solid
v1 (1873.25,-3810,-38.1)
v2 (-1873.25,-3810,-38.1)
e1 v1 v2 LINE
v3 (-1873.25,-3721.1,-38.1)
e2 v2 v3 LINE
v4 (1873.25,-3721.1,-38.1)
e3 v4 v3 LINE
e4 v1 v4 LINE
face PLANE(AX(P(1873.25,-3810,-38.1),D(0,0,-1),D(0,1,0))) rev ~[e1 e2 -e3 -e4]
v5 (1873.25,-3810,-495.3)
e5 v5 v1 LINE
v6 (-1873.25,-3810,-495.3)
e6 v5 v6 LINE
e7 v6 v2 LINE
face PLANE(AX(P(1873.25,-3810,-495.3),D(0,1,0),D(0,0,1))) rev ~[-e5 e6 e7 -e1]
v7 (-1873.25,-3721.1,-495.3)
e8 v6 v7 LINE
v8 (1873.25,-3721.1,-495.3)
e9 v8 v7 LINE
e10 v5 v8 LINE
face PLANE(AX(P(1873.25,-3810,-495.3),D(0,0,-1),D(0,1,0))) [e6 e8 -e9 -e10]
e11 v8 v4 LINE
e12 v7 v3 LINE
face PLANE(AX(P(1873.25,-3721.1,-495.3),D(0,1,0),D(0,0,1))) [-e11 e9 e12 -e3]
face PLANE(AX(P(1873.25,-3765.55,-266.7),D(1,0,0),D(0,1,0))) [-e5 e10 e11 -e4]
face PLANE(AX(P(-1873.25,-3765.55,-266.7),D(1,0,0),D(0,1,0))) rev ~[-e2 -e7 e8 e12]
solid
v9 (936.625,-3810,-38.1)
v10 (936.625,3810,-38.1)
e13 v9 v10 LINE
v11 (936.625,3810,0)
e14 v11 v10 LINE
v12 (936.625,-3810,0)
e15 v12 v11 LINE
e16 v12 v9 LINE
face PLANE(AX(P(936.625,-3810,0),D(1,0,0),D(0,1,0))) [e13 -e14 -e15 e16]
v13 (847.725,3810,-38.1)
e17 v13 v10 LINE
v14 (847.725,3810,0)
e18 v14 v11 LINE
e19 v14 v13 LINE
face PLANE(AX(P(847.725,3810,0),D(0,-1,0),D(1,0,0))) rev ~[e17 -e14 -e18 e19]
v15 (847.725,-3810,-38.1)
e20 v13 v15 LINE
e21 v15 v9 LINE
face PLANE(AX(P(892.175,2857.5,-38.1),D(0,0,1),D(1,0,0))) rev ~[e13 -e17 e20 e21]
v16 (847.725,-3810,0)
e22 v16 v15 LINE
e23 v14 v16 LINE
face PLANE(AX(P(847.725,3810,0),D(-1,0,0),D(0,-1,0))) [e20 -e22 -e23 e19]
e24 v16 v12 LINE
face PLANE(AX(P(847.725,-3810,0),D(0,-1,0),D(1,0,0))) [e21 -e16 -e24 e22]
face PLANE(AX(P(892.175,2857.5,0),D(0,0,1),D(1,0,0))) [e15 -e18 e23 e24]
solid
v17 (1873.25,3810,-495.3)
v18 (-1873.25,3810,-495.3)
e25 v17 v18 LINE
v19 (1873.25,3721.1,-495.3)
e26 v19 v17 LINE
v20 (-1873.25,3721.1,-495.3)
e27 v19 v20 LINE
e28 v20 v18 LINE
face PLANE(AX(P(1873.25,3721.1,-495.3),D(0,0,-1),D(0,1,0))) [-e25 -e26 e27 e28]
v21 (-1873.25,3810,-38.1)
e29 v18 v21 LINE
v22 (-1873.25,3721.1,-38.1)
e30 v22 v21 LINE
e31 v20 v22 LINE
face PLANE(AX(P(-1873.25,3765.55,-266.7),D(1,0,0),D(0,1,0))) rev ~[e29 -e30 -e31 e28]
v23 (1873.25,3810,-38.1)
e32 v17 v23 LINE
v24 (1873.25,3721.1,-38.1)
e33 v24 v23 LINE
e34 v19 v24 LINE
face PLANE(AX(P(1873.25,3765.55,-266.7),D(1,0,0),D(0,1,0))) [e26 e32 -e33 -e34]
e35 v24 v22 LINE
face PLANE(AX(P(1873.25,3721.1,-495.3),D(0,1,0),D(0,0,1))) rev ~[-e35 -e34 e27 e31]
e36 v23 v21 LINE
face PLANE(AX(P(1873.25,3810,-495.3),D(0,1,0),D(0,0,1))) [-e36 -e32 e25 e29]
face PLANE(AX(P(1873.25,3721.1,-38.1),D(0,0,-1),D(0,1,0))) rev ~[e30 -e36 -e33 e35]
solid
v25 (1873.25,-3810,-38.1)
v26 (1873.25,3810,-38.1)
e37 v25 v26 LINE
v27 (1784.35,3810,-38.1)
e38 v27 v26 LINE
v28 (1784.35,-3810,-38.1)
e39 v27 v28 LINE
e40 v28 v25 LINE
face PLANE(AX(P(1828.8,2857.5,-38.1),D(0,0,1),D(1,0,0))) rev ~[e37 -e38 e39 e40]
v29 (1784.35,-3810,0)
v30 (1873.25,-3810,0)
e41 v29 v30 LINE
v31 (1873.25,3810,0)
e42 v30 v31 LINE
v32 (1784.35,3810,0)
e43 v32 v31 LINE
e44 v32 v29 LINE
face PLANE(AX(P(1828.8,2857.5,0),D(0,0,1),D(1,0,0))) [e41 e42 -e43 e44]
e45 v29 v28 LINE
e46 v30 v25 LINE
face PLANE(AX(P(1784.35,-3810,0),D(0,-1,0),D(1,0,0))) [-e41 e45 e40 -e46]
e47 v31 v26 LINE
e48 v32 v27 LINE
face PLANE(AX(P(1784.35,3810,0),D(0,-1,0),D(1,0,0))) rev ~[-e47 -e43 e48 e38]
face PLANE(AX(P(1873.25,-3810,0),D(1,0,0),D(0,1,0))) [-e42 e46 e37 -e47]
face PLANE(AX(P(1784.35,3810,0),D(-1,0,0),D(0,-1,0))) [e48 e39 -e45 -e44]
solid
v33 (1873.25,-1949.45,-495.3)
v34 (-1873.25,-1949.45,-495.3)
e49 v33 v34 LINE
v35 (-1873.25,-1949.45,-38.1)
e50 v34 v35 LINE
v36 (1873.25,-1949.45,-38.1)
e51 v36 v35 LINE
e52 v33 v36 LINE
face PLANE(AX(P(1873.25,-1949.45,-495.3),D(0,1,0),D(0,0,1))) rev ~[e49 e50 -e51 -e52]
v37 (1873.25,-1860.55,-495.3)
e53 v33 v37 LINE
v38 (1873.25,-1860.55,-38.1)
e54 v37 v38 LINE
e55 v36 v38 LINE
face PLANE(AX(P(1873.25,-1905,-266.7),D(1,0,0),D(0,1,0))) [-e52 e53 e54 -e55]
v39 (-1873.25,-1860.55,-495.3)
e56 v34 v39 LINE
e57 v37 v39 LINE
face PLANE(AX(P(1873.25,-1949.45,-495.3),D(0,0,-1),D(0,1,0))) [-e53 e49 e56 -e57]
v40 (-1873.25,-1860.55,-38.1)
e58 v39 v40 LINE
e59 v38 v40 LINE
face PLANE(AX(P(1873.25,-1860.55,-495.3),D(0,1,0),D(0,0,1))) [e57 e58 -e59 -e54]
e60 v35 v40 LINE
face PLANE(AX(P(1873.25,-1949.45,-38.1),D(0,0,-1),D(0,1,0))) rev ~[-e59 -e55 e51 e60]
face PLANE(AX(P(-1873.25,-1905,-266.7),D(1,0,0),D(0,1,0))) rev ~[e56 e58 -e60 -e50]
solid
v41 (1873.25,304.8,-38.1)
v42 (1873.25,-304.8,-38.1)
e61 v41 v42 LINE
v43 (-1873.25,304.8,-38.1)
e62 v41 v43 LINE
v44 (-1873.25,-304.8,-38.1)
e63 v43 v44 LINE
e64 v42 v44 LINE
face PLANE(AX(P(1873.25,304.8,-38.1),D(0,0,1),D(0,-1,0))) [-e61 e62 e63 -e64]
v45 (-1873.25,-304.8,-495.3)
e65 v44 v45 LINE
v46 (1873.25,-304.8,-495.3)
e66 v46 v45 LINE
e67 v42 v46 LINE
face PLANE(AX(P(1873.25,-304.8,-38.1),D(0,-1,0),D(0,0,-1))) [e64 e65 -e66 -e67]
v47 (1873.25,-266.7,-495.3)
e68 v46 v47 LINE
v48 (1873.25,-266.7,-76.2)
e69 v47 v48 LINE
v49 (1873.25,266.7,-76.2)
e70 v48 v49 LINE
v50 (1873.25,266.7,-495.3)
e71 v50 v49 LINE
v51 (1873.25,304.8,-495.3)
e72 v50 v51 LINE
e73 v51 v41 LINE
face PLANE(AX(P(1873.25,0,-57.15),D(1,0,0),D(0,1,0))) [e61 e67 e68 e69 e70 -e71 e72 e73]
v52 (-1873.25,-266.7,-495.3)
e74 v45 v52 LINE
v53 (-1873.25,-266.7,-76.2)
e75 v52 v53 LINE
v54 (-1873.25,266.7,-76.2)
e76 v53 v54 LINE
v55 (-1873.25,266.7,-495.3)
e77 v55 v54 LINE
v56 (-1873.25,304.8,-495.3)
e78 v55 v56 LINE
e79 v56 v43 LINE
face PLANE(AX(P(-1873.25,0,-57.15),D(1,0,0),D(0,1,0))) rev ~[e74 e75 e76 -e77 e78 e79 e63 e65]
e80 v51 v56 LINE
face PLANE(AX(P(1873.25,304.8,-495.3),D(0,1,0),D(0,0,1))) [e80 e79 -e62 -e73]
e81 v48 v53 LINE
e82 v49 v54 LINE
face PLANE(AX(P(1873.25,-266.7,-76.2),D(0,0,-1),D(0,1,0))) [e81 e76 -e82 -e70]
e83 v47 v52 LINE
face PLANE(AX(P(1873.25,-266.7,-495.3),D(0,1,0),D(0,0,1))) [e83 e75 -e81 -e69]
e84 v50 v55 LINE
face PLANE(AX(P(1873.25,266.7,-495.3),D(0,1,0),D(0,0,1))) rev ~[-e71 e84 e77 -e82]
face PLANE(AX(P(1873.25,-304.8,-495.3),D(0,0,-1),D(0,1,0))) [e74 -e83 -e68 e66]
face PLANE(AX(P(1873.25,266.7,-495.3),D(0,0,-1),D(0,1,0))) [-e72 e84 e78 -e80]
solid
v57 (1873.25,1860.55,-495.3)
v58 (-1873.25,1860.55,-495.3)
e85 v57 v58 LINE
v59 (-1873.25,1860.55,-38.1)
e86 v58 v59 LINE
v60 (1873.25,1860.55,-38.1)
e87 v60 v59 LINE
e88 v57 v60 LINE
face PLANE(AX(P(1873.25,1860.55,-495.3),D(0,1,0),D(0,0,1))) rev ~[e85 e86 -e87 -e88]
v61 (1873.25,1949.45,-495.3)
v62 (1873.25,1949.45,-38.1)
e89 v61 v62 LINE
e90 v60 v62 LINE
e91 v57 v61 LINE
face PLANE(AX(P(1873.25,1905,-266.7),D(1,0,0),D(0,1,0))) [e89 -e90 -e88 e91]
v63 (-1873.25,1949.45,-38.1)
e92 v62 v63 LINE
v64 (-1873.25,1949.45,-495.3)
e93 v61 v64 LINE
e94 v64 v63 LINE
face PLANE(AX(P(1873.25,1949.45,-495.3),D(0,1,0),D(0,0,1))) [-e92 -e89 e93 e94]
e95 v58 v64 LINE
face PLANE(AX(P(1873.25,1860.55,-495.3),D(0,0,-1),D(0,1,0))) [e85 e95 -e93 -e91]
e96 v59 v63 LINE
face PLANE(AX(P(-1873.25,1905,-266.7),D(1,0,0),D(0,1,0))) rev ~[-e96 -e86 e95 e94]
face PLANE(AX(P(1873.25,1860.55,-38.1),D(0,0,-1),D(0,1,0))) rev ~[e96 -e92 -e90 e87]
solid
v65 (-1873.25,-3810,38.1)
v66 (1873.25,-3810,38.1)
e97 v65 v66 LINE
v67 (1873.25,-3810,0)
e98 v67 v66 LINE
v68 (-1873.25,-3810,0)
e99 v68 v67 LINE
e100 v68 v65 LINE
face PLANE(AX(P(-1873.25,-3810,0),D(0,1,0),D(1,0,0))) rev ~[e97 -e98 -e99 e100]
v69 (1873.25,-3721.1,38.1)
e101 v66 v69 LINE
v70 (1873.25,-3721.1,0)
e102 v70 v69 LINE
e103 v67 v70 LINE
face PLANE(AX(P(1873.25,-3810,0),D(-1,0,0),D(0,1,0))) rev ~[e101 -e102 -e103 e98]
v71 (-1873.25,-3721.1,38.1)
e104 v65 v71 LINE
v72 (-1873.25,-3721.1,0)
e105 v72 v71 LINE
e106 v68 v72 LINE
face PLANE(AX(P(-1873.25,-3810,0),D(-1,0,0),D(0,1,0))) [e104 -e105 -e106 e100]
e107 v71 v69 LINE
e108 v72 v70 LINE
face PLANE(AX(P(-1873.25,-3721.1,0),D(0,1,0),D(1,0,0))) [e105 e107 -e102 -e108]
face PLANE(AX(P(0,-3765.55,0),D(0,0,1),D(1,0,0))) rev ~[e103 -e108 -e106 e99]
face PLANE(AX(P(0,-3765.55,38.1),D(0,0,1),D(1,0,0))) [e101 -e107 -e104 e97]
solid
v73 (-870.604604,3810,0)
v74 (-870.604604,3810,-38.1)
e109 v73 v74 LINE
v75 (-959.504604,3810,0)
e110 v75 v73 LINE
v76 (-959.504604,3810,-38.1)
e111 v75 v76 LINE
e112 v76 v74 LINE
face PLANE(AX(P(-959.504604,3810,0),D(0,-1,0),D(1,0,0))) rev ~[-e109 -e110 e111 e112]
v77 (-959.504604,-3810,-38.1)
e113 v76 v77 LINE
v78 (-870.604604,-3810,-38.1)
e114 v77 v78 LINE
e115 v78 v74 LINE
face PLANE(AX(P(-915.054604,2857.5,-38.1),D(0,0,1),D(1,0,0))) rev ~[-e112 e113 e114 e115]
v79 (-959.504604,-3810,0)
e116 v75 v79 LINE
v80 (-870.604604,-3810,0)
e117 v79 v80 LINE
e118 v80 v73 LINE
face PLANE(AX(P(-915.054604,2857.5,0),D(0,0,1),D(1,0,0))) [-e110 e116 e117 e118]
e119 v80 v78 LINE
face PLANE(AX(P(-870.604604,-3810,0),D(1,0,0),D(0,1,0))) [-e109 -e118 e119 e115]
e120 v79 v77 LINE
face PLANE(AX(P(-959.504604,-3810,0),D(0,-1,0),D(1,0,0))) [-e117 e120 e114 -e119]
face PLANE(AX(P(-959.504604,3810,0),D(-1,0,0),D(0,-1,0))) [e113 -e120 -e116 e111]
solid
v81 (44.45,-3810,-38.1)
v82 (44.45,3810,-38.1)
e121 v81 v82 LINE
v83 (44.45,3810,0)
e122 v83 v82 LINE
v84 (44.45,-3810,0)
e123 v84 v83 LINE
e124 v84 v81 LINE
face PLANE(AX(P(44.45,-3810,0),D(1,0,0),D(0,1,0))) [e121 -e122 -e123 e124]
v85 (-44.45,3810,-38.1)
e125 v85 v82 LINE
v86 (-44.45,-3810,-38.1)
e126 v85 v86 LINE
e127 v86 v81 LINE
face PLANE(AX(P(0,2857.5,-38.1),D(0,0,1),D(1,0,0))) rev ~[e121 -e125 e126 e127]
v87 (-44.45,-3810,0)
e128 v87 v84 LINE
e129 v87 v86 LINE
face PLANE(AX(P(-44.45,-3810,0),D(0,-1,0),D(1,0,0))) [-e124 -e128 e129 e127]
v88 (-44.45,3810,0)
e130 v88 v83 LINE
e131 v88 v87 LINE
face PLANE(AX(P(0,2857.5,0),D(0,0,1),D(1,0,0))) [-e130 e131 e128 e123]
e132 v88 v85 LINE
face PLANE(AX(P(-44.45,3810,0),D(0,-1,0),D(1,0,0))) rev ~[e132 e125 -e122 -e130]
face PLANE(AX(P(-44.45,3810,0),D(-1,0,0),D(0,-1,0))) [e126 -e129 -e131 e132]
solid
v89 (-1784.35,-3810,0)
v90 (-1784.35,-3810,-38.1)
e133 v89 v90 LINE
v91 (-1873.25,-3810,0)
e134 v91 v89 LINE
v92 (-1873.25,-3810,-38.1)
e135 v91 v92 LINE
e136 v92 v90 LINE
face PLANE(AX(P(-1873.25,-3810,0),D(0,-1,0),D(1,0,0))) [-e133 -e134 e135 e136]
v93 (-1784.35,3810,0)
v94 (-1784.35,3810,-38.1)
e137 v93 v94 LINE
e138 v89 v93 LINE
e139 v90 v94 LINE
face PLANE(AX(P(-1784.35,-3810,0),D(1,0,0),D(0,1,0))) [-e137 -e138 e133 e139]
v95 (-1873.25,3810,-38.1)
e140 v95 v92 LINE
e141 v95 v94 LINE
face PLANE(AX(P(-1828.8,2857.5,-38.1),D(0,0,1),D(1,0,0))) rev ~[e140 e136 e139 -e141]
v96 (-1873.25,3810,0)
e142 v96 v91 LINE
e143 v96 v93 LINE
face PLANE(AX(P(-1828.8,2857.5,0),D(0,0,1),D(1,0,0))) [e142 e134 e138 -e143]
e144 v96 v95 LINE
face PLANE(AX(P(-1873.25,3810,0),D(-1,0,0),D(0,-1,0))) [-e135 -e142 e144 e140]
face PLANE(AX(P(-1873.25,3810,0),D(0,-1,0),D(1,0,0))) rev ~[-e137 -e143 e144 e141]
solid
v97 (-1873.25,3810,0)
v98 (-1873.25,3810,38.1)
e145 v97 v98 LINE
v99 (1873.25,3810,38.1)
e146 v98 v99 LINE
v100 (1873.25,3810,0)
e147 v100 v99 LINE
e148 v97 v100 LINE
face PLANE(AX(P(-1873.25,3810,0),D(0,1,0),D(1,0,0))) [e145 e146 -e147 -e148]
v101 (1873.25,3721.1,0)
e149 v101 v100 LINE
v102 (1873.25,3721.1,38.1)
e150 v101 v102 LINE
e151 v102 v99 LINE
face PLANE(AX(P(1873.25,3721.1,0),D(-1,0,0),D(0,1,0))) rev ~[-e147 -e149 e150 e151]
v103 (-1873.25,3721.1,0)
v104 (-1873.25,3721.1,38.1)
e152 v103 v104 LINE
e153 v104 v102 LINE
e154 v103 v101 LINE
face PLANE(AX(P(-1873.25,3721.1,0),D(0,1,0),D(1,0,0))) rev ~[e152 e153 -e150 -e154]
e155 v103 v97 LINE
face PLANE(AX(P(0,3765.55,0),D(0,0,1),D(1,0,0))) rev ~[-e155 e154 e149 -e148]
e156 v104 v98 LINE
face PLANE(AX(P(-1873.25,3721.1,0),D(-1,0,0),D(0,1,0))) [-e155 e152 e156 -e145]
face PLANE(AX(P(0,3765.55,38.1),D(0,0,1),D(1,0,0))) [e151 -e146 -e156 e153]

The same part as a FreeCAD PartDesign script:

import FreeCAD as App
import Part
import Sketcher
Q = App.Units.Quantity


def add_polygon(sketch, points):
    """Adds a closed chain of lines whose ends are joined by coincident constraints."""
    first, n = sketch.GeometryCount, len(points)
    for a, b in zip(points, points[1:] + points[:1]):
        sketch.addGeometry(Part.LineSegment(App.Vector(*a, 0), App.Vector(*b, 0)), False)
    for i in range(n):
        sketch.addConstraint(Sketcher.Constraint("Coincident", first + i, 2, first + (i + 1) % n, 1))

doc = App.newDocument("Part")
body = doc.addObject("PartDesign::Body", "Body")
body.AllowCompound = True

sketch1 = doc.addObject("Sketcher::SketchObject", "Sketch")
body.addObject(sketch1)
sketch1.AttachmentSupport = (doc.XY_Plane, [""])
sketch1.MapMode = "FlatFace"
add_polygon(sketch1, [(-1873, 3810), (-1873, -3810), (-1784, -3810), (-1784, 3810)])
add_polygon(sketch1, [(-960, 3810), (-960, -3810), (-871, -3810), (-871, 3810)])
add_polygon(sketch1, [(-44, 3810), (-44, -3810), (44, -3810), (44, 3810)])
add_polygon(sketch1, [(848, 3810), (848, -3810), (937, -3810), (937, 3810)])
add_polygon(sketch1, [(1784, 3810), (1784, -3810), (1873, -3810), (1873, 3810)])
sketch1.addConstraint(Sketcher.Constraint("Vertical", 0))
sketch1.addConstraint(Sketcher.Constraint("Horizontal", 1))
sketch1.addConstraint(Sketcher.Constraint("Vertical", 2))
sketch1.addConstraint(Sketcher.Constraint("Horizontal", 3))
sketch1.addConstraint(Sketcher.Constraint("Vertical", 4))
sketch1.addConstraint(Sketcher.Constraint("Horizontal", 5))
sketch1.addConstraint(Sketcher.Constraint("Vertical", 6))
sketch1.addConstraint(Sketcher.Constraint("Horizontal", 7))
sketch1.addConstraint(Sketcher.Constraint("Vertical", 8))
sketch1.addConstraint(Sketcher.Constraint("Horizontal", 9))
sketch1.addConstraint(Sketcher.Constraint("Vertical", 10))
sketch1.addConstraint(Sketcher.Constraint("Horizontal", 11))
sketch1.addConstraint(Sketcher.Constraint("Vertical", 12))
sketch1.addConstraint(Sketcher.Constraint("Horizontal", 13))
sketch1.addConstraint(Sketcher.Constraint("Vertical", 14))
sketch1.addConstraint(Sketcher.Constraint("Horizontal", 15))
sketch1.addConstraint(Sketcher.Constraint("Vertical", 16))
sketch1.addConstraint(Sketcher.Constraint("Horizontal", 17))
sketch1.addConstraint(Sketcher.Constraint("Vertical", 18))
sketch1.addConstraint(Sketcher.Constraint("Horizontal", 19))
sketch1.addConstraint(Sketcher.Constraint("Symmetric", 8, 2, 10, 2, -1, 1))
sketch1.addConstraint(Sketcher.Constraint("Symmetric", 2, 2, 16, 2, -1, 1))
sketch1.addConstraint(Sketcher.Constraint("Symmetric", 0, 2, 18, 2, -1, 1))
sketch1.addConstraint(Sketcher.Constraint("Horizontal", 1, 2, 4, 2))
sketch1.addConstraint(Sketcher.Constraint("Horizontal", 3, 2, 6, 2))
sketch1.addConstraint(Sketcher.Constraint("Horizontal", 5, 2, 8, 2))
sketch1.addConstraint(Sketcher.Constraint("Horizontal", 7, 2, 10, 2))
sketch1.addConstraint(Sketcher.Constraint("Horizontal", 9, 2, 12, 2))
sketch1.addConstraint(Sketcher.Constraint("Horizontal", 11, 2, 14, 2))
sketch1.addConstraint(Sketcher.Constraint("Equal", 3, 5))
sketch1.addConstraint(Sketcher.Constraint("Equal", 7, 9))
sketch1.addConstraint(Sketcher.Constraint("Equal", 11, 13))
sketch1.addConstraint(Sketcher.Constraint("DistanceY", 0, 2, 0, 1, Q("300 in")))
sketch1.addConstraint(Sketcher.Constraint("DistanceX", 1, 1, 1, 2, Q("3.5 in")))
sketch1.addConstraint(Sketcher.Constraint("DistanceX", 0, 2, 8, 2, Q("72 in")))
sketch1.addConstraint(Sketcher.Constraint("DistanceX", -1, 1, 12, 2, Q("33.375 in")))
sketch1.addConstraint(Sketcher.Constraint("DistanceX", 4, 2, -1, 1, Q("959.504604 mm")))
pad1 = doc.addObject("PartDesign::Pad", "Pad")
body.addObject(pad1)
pad1.Profile = sketch1
pad1.Length = Q("1.5 in")
pad1.Reversed = True
body2 = doc.addObject("PartDesign::Body", "Body001")
body2.AllowCompound = True

sketch2 = doc.addObject("Sketcher::SketchObject", "Sketch001")
body2.addObject(sketch2)
sketch2.AttachmentSupport = (doc.getObject("XY_Plane001"), [""])
sketch2.MapMode = "FlatFace"
add_polygon(sketch2, [(-1873, 3810), (-1873, 3721), (1873, 3721), (1873, 3810)])
add_polygon(sketch2, [(-1873, -3721), (-1873, -3810), (1873, -3810), (1873, -3721)])
sketch2.addConstraint(Sketcher.Constraint("Vertical", 0))
sketch2.addConstraint(Sketcher.Constraint("Horizontal", 1))
sketch2.addConstraint(Sketcher.Constraint("Vertical", 2))
sketch2.addConstraint(Sketcher.Constraint("Horizontal", 3))
sketch2.addConstraint(Sketcher.Constraint("Vertical", 4))
sketch2.addConstraint(Sketcher.Constraint("Horizontal", 5))
sketch2.addConstraint(Sketcher.Constraint("Vertical", 6))
sketch2.addConstraint(Sketcher.Constraint("Horizontal", 7))
sketch2.addConstraint(Sketcher.Constraint("Symmetric", 2, 2, 4, 2, -1, 1))
sketch2.addConstraint(Sketcher.Constraint("Symmetric", 0, 2, 6, 2, -1, 1))
sketch2.addConstraint(Sketcher.Constraint("Vertical", 3, 2, 4, 2))
sketch2.addConstraint(Sketcher.Constraint("DistanceX", 1, 1, 1, 2, Q("147.5 in")))
sketch2.addConstraint(Sketcher.Constraint("DistanceY", 0, 2, 0, 1, Q("3.5 in")))
sketch2.addConstraint(Sketcher.Constraint("DistanceY", -1, 1, 2, 2, Q("150 in")))
pad2 = doc.addObject("PartDesign::Pad", "Pad001")
body2.addObject(pad2)
pad2.Profile = sketch2
pad2.Length = Q("1.5 in")
body3 = doc.addObject("PartDesign::Body", "Body002")
body3.AllowCompound = True

sketch3 = doc.addObject("Sketcher::SketchObject", "Sketch002")
body3.addObject(sketch3)
sketch3.AttachmentSupport = (doc.getObject("YZ_Plane002"), [""])
sketch3.MapMode = "FlatFace"
sketch3.AttachmentOffset = App.Placement(App.Vector(0, 0, 73.75 * 25.4), App.Rotation())
add_polygon(sketch3, [(-3810, -38), (-3810, -495), (-3721, -495), (-3721, -38)])
add_polygon(sketch3, [(-1949, -38), (-1949, -495), (-1861, -495), (-1861, -38)])
add_polygon(sketch3, [(305, -38), (-305, -38), (-305, -495), (-267, -495), (-267, -76), (267, -76), (267, -495), (305, -495)])
add_polygon(sketch3, [(3721, -38), (3721, -495), (3810, -495), (3810, -38)])
add_polygon(sketch3, [(1861, -38), (1861, -495), (1949, -495), (1949, -38)])
sketch3.addConstraint(Sketcher.Constraint("Vertical", 0))
sketch3.addConstraint(Sketcher.Constraint("Horizontal", 1))
sketch3.addConstraint(Sketcher.Constraint("Vertical", 2))
sketch3.addConstraint(Sketcher.Constraint("Horizontal", 3))
sketch3.addConstraint(Sketcher.Constraint("Vertical", 4))
sketch3.addConstraint(Sketcher.Constraint("Horizontal", 5))
sketch3.addConstraint(Sketcher.Constraint("Vertical", 6))
sketch3.addConstraint(Sketcher.Constraint("Horizontal", 7))
sketch3.addConstraint(Sketcher.Constraint("Horizontal", 8))
sketch3.addConstraint(Sketcher.Constraint("Vertical", 9))
sketch3.addConstraint(Sketcher.Constraint("Horizontal", 10))
sketch3.addConstraint(Sketcher.Constraint("Vertical", 11))
sketch3.addConstraint(Sketcher.Constraint("Horizontal", 12))
sketch3.addConstraint(Sketcher.Constraint("Vertical", 13))
sketch3.addConstraint(Sketcher.Constraint("Horizontal", 14))
sketch3.addConstraint(Sketcher.Constraint("Vertical", 15))
sketch3.addConstraint(Sketcher.Constraint("Vertical", 16))
sketch3.addConstraint(Sketcher.Constraint("Horizontal", 17))
sketch3.addConstraint(Sketcher.Constraint("Vertical", 18))
sketch3.addConstraint(Sketcher.Constraint("Horizontal", 19))
sketch3.addConstraint(Sketcher.Constraint("Vertical", 20))
sketch3.addConstraint(Sketcher.Constraint("Horizontal", 21))
sketch3.addConstraint(Sketcher.Constraint("Vertical", 22))
sketch3.addConstraint(Sketcher.Constraint("Horizontal", 23))
sketch3.addConstraint(Sketcher.Constraint("Symmetric", 10, 2, 13, 2, -2))
sketch3.addConstraint(Sketcher.Constraint("Symmetric", 1, 2, 16, 2, -2))
sketch3.addConstraint(Sketcher.Constraint("Symmetric", 3, 2, 18, 2, -2))
sketch3.addConstraint(Sketcher.Constraint("Symmetric", 5, 2, 20, 2, -2))
sketch3.addConstraint(Sketcher.Constraint("Symmetric", 7, 2, 22, 2, -2))
sketch3.addConstraint(Sketcher.Constraint("Horizontal", 1, 2, 4, 2))
sketch3.addConstraint(Sketcher.Constraint("Horizontal", 3, 2, 6, 2))
sketch3.addConstraint(Sketcher.Constraint("Horizontal", 7, 2, 8, 2))
sketch3.addConstraint(Sketcher.Constraint("Horizontal", 5, 2, 9, 2))
sketch3.addConstraint(Sketcher.Constraint("Equal", 3, 5))
sketch3.addConstraint(Sketcher.Constraint("Equal", 10, 14))
sketch3.addConstraint(Sketcher.Constraint("DistanceX", 8, 2, 8, 1, Q("24 in")))
sketch3.addConstraint(Sketcher.Constraint("DistanceX", 12, 1, 12, 2, Q("21 in")))
sketch3.addConstraint(Sketcher.Constraint("DistanceY", 0, 2, 0, 1, Q("18 in")))
sketch3.addConstraint(Sketcher.Constraint("DistanceX", 1, 1, 1, 2, Q("3.5 in")))
sketch3.addConstraint(Sketcher.Constraint("DistanceY", 11, 1, 11, 2, Q("16.5 in")))
sketch3.addConstraint(Sketcher.Constraint("DistanceX", 0, 2, -1, 1, Q("150 in")))
sketch3.addConstraint(Sketcher.Constraint("DistanceY", 11, 2, -1, 1, Q("3 in")))
sketch3.addConstraint(Sketcher.Constraint("DistanceX", 4, 2, -1, 1, Q("76.75 in")))
pad3 = doc.addObject("PartDesign::Pad", "Pad002")
body3.addObject(pad3)
pad3.Profile = sketch3
pad3.Length = Q("147.5 in")
pad3.Reversed = True

doc.recompute()
